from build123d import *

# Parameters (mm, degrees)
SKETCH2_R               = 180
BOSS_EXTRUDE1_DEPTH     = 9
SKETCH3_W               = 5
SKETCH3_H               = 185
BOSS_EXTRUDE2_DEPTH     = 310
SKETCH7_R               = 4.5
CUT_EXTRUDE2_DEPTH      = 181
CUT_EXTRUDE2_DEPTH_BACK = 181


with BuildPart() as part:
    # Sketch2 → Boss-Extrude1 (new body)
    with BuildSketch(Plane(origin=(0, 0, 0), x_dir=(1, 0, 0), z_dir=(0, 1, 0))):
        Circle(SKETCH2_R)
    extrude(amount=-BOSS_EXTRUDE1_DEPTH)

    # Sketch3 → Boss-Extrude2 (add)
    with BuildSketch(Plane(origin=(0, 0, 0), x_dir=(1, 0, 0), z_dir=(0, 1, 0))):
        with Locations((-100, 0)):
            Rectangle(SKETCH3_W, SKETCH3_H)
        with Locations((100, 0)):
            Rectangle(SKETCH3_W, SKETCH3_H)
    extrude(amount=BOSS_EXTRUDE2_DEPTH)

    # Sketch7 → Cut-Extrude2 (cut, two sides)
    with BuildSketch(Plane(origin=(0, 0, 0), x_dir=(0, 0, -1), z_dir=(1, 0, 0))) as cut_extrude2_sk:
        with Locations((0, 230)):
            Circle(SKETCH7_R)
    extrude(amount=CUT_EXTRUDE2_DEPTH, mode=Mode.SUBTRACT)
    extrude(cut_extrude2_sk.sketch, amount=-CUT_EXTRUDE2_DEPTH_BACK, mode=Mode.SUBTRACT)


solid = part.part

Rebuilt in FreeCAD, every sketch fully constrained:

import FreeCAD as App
import Part
import Sketcher
Q = App.Units.Quantity


def add_polygon(sketch, points):
    """Adds a closed chain of lines whose ends are joined by coincident constraints."""
    first, n = sketch.GeometryCount, len(points)
    for a, b in zip(points, points[1:] + points[:1]):
        sketch.addGeometry(Part.LineSegment(App.Vector(*a, 0), App.Vector(*b, 0)), False)
    for i in range(n):
        sketch.addConstraint(Sketcher.Constraint("Coincident", first + i, 2, first + (i + 1) % n, 1))

doc = App.newDocument("Part")
body = doc.addObject("PartDesign::Body", "Body")

# Sketch on XZ plane
sketch1 = body.newObject("Sketcher::SketchObject", "Sketch")
sketch1.AttachmentSupport = (doc.getObject("XZ_Plane"), [""])
sketch1.MapMode = "FlatFace"
sketch1.addGeometry(Part.Circle(App.Vector(0, 0, 0), App.Vector(0, 0, 1), 180), False)
sketch1.addConstraint([
    Sketcher.Constraint("Coincident", 0, 3, -1, 1),
    Sketcher.Constraint("Diameter", 0, Q("360 mm")),
])
pad1 = body.newObject("PartDesign::Pad", "Pad")
pad1.Profile = sketch1
pad1.Length = 9

# Sketch on XZ plane
sketch2 = body.newObject("Sketcher::SketchObject", "Sketch001")
sketch2.AttachmentSupport = (doc.getObject("XZ_Plane"), [""])
sketch2.MapMode = "FlatFace"
add_polygon(sketch2, [(-102.5, -92.5), (-102.5, 92.5), (-97.5, 92.5), (-97.5, -92.5)])  # lines 0-3
add_polygon(sketch2, [(97.5, -92.5), (97.5, 92.5), (102.5, 92.5), (102.5, -92.5)])  # lines 4-7
sketch2.addConstraint([
    Sketcher.Constraint("Vertical", 0),
    Sketcher.Constraint("Horizontal", 1),
    Sketcher.Constraint("Vertical", 2),
    Sketcher.Constraint("Horizontal", 3),
    Sketcher.Constraint("Vertical", 4),
    Sketcher.Constraint("Horizontal", 5),
    Sketcher.Constraint("Vertical", 6),
    Sketcher.Constraint("Horizontal", 7),
    Sketcher.Constraint("Symmetric", 2, 2, 4, 2, -1, 1),
    Sketcher.Constraint("Symmetric", 0, 2, 6, 2, -1, 1),
    Sketcher.Constraint("Horizontal", 1, 2, 4, 2),
    Sketcher.Constraint("DistanceX", 1, 1, 1, 2, Q("5 mm")),
    Sketcher.Constraint("DistanceY", 0, 1, 0, 2, Q("185 mm")),
    Sketcher.Constraint("DistanceX", 1, 2, 4, 2, Q("195 mm")),
])
pad2 = body.newObject("PartDesign::Pad", "Pad001")
pad2.Profile = sketch2
pad2.Length = 310
pad2.Reversed = True

# Sketch on YZ plane
sketch3 = body.newObject("Sketcher::SketchObject", "Sketch002")
sketch3.AttachmentSupport = (doc.getObject("YZ_Plane"), [""])
sketch3.MapMode = "FlatFace"
sketch3.addGeometry(Part.Circle(App.Vector(230, 0, 0), App.Vector(0, 0, 1), 4.5), False)
sketch3.addConstraint([
    Sketcher.Constraint("PointOnObject", 0, 3, -1),
    Sketcher.Constraint("Diameter", 0, Q("9 mm")),
    Sketcher.Constraint("DistanceX", -1, 1, 0, 3, Q("230 mm")),
])
pocket1 = body.newObject("PartDesign::Pocket", "Pocket")
pocket1.Profile = sketch3
pocket1.Type = "ThroughAll"
pocket1.Midplane = True

doc.recompute()
